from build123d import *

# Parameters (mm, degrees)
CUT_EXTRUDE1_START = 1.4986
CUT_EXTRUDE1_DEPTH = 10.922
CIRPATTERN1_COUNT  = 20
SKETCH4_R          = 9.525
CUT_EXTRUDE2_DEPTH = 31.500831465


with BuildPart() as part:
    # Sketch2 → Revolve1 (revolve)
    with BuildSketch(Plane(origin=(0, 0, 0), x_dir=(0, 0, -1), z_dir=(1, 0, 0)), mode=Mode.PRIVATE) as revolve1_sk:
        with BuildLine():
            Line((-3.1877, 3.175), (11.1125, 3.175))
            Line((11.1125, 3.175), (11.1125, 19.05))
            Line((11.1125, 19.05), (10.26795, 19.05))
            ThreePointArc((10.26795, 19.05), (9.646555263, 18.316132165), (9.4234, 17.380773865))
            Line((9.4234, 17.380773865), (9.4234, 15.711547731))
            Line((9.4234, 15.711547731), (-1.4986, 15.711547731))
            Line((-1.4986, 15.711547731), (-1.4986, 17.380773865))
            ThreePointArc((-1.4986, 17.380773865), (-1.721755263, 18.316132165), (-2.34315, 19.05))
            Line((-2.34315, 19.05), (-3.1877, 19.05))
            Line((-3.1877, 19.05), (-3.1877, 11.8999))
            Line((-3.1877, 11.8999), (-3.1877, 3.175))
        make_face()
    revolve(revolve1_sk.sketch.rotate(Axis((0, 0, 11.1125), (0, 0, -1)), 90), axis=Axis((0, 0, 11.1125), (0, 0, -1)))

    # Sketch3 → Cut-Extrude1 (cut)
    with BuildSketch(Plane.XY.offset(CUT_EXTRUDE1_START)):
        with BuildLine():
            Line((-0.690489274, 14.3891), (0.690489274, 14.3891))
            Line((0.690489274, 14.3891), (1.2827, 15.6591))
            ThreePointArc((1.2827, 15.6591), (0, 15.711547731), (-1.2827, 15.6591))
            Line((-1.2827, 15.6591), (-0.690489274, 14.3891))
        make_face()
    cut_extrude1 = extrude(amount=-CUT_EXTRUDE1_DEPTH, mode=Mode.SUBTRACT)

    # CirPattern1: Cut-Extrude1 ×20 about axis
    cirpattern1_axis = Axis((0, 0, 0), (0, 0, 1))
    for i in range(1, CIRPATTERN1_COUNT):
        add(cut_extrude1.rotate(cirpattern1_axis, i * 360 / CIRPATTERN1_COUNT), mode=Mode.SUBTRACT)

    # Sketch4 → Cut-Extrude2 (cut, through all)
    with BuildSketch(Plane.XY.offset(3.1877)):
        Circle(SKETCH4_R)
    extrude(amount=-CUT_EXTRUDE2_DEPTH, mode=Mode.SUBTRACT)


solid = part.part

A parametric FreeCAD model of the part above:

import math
import FreeCAD as App
import Part
import Sketcher
from FreeCAD import Vector
Q = App.Units.Quantity

doc = App.newDocument("Part")
body = doc.addObject("PartDesign::Body", "Body")

# Sketch on YZ plane
sketch1 = doc.addObject("Sketcher::SketchObject", "Sketch")
body.addObject(sketch1)
sketch1.AttachmentSupport = (doc.YZ_Plane, [""])
sketch1.MapMode = "FlatFace"
sketch1.addGeometry(Part.LineSegment(Vector(3.2, 3.2, 0), Vector(3.2, -11.1, 0)), False)
sketch1.addGeometry(Part.LineSegment(Vector(3.2, -11.1, 0), Vector(19.1, -11.1, 0)), False)
sketch1.addGeometry(Part.LineSegment(Vector(19.1, -11.1, 0), Vector(19.1, -10.3, 0)), False)
sketch1.addGeometry(Part.ArcOfCircle(Part.Circle(Vector(17.4, -11.5, 0), Vector(0, 0, 1), 2.1), math.radians(36), math.radians(90)), False)
sketch1.addGeometry(Part.LineSegment(Vector(17.4, -9.4, 0), Vector(15.7, -9.4, 0)), False)
sketch1.addGeometry(Part.LineSegment(Vector(15.7, -9.4, 0), Vector(15.7, 1.5, 0)), False)
sketch1.addGeometry(Part.LineSegment(Vector(15.7, 1.5, 0), Vector(17.4, 1.5, 0)), False)
sketch1.addGeometry(Part.ArcOfCircle(Part.Circle(Vector(17.4, 3.6, 0), Vector(0, 0, 1), 2.1), math.radians(-90), math.radians(-36)), False)
sketch1.addGeometry(Part.LineSegment(Vector(19.1, 2.3, 0), Vector(19.1, 3.2, 0)), False)
sketch1.addGeometry(Part.LineSegment(Vector(19.1, 3.2, 0), Vector(3.2, 3.2, 0)), False)
sketch1.addConstraint(Sketcher.Constraint("Coincident", 0, 2, 1, 1))
sketch1.addConstraint(Sketcher.Constraint("Coincident", 1, 2, 2, 1))
sketch1.addConstraint(Sketcher.Constraint("Coincident", 2, 2, 3, 1))
sketch1.addConstraint(Sketcher.Constraint("Tangent", 3, 2, 4, 1))
sketch1.addConstraint(Sketcher.Constraint("Coincident", 4, 2, 5, 1))
sketch1.addConstraint(Sketcher.Constraint("Coincident", 5, 2, 6, 1))
sketch1.addConstraint(Sketcher.Constraint("Tangent", 6, 2, 7, 1))
sketch1.addConstraint(Sketcher.Constraint("Coincident", 7, 2, 8, 1))
sketch1.addConstraint(Sketcher.Constraint("Coincident", 8, 2, 9, 1))
sketch1.addConstraint(Sketcher.Constraint("Coincident", 9, 2, 0, 1))
sketch1.addConstraint(Sketcher.Constraint("Vertical", 0))
sketch1.addConstraint(Sketcher.Constraint("Horizontal", 1))
sketch1.addConstraint(Sketcher.Constraint("Vertical", 2))
sketch1.addConstraint(Sketcher.Constraint("Horizontal", 4))
sketch1.addConstraint(Sketcher.Constraint("Vertical", 5))
sketch1.addConstraint(Sketcher.Constraint("Horizontal", 6))
sketch1.addConstraint(Sketcher.Constraint("Vertical", 8))
sketch1.addConstraint(Sketcher.Constraint("Horizontal", 9))
sketch1.addConstraint(Sketcher.Constraint("Equal", 3, 7))
sketch1.addConstraint(Sketcher.Constraint("Vertical", 3, 3, 7, 3))
sketch1.addConstraint(Sketcher.Constraint("Vertical", 2, 2, 7, 2))
sketch1.addConstraint(Sketcher.Constraint("Equal", 2, 8))
sketch1.addConstraint(Sketcher.Constraint("DistanceY", 5, 1, 5, 2, Q("0.43 in")))
sketch1.addConstraint(Sketcher.Constraint("DistanceX", 1, 1, 1, 2, Q("0.625 in")))
sketch1.addConstraint(Sketcher.Constraint("DistanceY", 0, 2, 0, 1, Q("0.563 in")))
sketch1.addConstraint(Sketcher.Constraint("DistanceX", -1, 1, 1, 2, Q("0.75 in")))
sketch1.addConstraint(Sketcher.Constraint("DistanceY", 0, 2, -1, 1, Q("0.4375 in")))
sketch1.addConstraint(Sketcher.Constraint("Radius", 3, Q("2.071861 mm")))
sketch1.addConstraint(Sketcher.Constraint("DistanceY", 2, 1, 2, 2, Q("0.84455 mm")))
sketch1.addConstraint(Sketcher.Constraint("DistanceX", 4, 2, 4, 1, Q("1.669226 mm")))
revolution = doc.addObject("PartDesign::Revolution", "Revolution")
body.addObject(revolution)
revolution.Profile = sketch1
revolution.ReferenceAxis = (sketch1, ["V_Axis"])
revolution.Angle = 360

# Sketch on XY plane
sketch2 = doc.addObject("Sketcher::SketchObject", "Sketch001")
body.addObject(sketch2)
sketch2.AttachmentSupport = (doc.XY_Plane, [""])
sketch2.MapMode = "FlatFace"
sketch2.AttachmentOffset = App.Placement(Vector(0, 0, 0.059 * 25.4), App.Rotation())
sketch2.addGeometry(Part.LineSegment(Vector(-0.7, 14.4, 0), Vector(0.7, 14.4, 0)), False)
sketch2.addGeometry(Part.LineSegment(Vector(0.7, 14.4, 0), Vector(1.3, 15.7, 0)), False)
sketch2.addGeometry(Part.ArcOfCircle(Part.Circle(Vector(0, 0, 0), Vector(0, 0, 1), 15.7), math.radians(85.32), math.radians(94.68)), False)
sketch2.addGeometry(Part.LineSegment(Vector(-1.3, 15.7, 0), Vector(-0.7, 14.4, 0)), False)
sketch2.addConstraint(Sketcher.Constraint("Coincident", 0, 2, 1, 1))
sketch2.addConstraint(Sketcher.Constraint("Coincident", 1, 2, 2, 1))
sketch2.addConstraint(Sketcher.Constraint("Coincident", 2, 2, 3, 1))
sketch2.addConstraint(Sketcher.Constraint("Coincident", 3, 2, 0, 1))
sketch2.addConstraint(Sketcher.Constraint("Horizontal", 0))
sketch2.addConstraint(Sketcher.Constraint("Coincident", 2, 3, -1, 1))
sketch2.addConstraint(Sketcher.Constraint("Horizontal", 1, 2, 2, 2))
sketch2.addConstraint(Sketcher.Constraint("Equal", 1, 3))
sketch2.addConstraint(Sketcher.Constraint("Angle", 1, Q("65 deg")))
sketch2.addConstraint(Sketcher.Constraint("DistanceY", 0, 2, 1, 2, Q("0.05 in")))
sketch2.addConstraint(Sketcher.Constraint("DistanceX", 2, 2, 1, 2, Q("0.101 in")))
sketch2.addConstraint(Sketcher.Constraint("DistanceY", -1, 1, 0, 2, Q("0.5665 in")))
pocket1 = doc.addObject("PartDesign::Pocket", "Pocket")
body.addObject(pocket1)
pocket1.Profile = sketch2
pocket1.Length = Q("0.43 in")
doc.recompute()

polarpattern = doc.addObject("PartDesign::PolarPattern", "PolarPattern")
body.addObject(polarpattern)
polarpattern.Originals = [pocket1]
polarpattern.Axis = (doc.Z_Axis, [""])
polarpattern.Angle = 360
polarpattern.Occurrences = 20
body.Tip = polarpattern

# Sketch on XY plane
sketch3 = doc.addObject("Sketcher::SketchObject", "Sketch002")
body.addObject(sketch3)
sketch3.AttachmentSupport = (doc.XY_Plane, [""])
sketch3.MapMode = "FlatFace"
sketch3.AttachmentOffset = App.Placement(Vector(0, 0, 0.1255 * 25.4), App.Rotation())
sketch3.addGeometry(Part.Circle(Vector(0, 0, 0), Vector(0, 0, 1), 10), False)
sketch3.addConstraint(Sketcher.Constraint("Coincident", 0, 3, -1, 1))
sketch3.addConstraint(Sketcher.Constraint("Diameter", 0, Q("0.75 in")))
pocket2 = doc.addObject("PartDesign::Pocket", "Pocket001")
body.addObject(pocket2)
pocket2.Profile = sketch3
pocket2.Type = "ThroughAll"

doc.recompute()
